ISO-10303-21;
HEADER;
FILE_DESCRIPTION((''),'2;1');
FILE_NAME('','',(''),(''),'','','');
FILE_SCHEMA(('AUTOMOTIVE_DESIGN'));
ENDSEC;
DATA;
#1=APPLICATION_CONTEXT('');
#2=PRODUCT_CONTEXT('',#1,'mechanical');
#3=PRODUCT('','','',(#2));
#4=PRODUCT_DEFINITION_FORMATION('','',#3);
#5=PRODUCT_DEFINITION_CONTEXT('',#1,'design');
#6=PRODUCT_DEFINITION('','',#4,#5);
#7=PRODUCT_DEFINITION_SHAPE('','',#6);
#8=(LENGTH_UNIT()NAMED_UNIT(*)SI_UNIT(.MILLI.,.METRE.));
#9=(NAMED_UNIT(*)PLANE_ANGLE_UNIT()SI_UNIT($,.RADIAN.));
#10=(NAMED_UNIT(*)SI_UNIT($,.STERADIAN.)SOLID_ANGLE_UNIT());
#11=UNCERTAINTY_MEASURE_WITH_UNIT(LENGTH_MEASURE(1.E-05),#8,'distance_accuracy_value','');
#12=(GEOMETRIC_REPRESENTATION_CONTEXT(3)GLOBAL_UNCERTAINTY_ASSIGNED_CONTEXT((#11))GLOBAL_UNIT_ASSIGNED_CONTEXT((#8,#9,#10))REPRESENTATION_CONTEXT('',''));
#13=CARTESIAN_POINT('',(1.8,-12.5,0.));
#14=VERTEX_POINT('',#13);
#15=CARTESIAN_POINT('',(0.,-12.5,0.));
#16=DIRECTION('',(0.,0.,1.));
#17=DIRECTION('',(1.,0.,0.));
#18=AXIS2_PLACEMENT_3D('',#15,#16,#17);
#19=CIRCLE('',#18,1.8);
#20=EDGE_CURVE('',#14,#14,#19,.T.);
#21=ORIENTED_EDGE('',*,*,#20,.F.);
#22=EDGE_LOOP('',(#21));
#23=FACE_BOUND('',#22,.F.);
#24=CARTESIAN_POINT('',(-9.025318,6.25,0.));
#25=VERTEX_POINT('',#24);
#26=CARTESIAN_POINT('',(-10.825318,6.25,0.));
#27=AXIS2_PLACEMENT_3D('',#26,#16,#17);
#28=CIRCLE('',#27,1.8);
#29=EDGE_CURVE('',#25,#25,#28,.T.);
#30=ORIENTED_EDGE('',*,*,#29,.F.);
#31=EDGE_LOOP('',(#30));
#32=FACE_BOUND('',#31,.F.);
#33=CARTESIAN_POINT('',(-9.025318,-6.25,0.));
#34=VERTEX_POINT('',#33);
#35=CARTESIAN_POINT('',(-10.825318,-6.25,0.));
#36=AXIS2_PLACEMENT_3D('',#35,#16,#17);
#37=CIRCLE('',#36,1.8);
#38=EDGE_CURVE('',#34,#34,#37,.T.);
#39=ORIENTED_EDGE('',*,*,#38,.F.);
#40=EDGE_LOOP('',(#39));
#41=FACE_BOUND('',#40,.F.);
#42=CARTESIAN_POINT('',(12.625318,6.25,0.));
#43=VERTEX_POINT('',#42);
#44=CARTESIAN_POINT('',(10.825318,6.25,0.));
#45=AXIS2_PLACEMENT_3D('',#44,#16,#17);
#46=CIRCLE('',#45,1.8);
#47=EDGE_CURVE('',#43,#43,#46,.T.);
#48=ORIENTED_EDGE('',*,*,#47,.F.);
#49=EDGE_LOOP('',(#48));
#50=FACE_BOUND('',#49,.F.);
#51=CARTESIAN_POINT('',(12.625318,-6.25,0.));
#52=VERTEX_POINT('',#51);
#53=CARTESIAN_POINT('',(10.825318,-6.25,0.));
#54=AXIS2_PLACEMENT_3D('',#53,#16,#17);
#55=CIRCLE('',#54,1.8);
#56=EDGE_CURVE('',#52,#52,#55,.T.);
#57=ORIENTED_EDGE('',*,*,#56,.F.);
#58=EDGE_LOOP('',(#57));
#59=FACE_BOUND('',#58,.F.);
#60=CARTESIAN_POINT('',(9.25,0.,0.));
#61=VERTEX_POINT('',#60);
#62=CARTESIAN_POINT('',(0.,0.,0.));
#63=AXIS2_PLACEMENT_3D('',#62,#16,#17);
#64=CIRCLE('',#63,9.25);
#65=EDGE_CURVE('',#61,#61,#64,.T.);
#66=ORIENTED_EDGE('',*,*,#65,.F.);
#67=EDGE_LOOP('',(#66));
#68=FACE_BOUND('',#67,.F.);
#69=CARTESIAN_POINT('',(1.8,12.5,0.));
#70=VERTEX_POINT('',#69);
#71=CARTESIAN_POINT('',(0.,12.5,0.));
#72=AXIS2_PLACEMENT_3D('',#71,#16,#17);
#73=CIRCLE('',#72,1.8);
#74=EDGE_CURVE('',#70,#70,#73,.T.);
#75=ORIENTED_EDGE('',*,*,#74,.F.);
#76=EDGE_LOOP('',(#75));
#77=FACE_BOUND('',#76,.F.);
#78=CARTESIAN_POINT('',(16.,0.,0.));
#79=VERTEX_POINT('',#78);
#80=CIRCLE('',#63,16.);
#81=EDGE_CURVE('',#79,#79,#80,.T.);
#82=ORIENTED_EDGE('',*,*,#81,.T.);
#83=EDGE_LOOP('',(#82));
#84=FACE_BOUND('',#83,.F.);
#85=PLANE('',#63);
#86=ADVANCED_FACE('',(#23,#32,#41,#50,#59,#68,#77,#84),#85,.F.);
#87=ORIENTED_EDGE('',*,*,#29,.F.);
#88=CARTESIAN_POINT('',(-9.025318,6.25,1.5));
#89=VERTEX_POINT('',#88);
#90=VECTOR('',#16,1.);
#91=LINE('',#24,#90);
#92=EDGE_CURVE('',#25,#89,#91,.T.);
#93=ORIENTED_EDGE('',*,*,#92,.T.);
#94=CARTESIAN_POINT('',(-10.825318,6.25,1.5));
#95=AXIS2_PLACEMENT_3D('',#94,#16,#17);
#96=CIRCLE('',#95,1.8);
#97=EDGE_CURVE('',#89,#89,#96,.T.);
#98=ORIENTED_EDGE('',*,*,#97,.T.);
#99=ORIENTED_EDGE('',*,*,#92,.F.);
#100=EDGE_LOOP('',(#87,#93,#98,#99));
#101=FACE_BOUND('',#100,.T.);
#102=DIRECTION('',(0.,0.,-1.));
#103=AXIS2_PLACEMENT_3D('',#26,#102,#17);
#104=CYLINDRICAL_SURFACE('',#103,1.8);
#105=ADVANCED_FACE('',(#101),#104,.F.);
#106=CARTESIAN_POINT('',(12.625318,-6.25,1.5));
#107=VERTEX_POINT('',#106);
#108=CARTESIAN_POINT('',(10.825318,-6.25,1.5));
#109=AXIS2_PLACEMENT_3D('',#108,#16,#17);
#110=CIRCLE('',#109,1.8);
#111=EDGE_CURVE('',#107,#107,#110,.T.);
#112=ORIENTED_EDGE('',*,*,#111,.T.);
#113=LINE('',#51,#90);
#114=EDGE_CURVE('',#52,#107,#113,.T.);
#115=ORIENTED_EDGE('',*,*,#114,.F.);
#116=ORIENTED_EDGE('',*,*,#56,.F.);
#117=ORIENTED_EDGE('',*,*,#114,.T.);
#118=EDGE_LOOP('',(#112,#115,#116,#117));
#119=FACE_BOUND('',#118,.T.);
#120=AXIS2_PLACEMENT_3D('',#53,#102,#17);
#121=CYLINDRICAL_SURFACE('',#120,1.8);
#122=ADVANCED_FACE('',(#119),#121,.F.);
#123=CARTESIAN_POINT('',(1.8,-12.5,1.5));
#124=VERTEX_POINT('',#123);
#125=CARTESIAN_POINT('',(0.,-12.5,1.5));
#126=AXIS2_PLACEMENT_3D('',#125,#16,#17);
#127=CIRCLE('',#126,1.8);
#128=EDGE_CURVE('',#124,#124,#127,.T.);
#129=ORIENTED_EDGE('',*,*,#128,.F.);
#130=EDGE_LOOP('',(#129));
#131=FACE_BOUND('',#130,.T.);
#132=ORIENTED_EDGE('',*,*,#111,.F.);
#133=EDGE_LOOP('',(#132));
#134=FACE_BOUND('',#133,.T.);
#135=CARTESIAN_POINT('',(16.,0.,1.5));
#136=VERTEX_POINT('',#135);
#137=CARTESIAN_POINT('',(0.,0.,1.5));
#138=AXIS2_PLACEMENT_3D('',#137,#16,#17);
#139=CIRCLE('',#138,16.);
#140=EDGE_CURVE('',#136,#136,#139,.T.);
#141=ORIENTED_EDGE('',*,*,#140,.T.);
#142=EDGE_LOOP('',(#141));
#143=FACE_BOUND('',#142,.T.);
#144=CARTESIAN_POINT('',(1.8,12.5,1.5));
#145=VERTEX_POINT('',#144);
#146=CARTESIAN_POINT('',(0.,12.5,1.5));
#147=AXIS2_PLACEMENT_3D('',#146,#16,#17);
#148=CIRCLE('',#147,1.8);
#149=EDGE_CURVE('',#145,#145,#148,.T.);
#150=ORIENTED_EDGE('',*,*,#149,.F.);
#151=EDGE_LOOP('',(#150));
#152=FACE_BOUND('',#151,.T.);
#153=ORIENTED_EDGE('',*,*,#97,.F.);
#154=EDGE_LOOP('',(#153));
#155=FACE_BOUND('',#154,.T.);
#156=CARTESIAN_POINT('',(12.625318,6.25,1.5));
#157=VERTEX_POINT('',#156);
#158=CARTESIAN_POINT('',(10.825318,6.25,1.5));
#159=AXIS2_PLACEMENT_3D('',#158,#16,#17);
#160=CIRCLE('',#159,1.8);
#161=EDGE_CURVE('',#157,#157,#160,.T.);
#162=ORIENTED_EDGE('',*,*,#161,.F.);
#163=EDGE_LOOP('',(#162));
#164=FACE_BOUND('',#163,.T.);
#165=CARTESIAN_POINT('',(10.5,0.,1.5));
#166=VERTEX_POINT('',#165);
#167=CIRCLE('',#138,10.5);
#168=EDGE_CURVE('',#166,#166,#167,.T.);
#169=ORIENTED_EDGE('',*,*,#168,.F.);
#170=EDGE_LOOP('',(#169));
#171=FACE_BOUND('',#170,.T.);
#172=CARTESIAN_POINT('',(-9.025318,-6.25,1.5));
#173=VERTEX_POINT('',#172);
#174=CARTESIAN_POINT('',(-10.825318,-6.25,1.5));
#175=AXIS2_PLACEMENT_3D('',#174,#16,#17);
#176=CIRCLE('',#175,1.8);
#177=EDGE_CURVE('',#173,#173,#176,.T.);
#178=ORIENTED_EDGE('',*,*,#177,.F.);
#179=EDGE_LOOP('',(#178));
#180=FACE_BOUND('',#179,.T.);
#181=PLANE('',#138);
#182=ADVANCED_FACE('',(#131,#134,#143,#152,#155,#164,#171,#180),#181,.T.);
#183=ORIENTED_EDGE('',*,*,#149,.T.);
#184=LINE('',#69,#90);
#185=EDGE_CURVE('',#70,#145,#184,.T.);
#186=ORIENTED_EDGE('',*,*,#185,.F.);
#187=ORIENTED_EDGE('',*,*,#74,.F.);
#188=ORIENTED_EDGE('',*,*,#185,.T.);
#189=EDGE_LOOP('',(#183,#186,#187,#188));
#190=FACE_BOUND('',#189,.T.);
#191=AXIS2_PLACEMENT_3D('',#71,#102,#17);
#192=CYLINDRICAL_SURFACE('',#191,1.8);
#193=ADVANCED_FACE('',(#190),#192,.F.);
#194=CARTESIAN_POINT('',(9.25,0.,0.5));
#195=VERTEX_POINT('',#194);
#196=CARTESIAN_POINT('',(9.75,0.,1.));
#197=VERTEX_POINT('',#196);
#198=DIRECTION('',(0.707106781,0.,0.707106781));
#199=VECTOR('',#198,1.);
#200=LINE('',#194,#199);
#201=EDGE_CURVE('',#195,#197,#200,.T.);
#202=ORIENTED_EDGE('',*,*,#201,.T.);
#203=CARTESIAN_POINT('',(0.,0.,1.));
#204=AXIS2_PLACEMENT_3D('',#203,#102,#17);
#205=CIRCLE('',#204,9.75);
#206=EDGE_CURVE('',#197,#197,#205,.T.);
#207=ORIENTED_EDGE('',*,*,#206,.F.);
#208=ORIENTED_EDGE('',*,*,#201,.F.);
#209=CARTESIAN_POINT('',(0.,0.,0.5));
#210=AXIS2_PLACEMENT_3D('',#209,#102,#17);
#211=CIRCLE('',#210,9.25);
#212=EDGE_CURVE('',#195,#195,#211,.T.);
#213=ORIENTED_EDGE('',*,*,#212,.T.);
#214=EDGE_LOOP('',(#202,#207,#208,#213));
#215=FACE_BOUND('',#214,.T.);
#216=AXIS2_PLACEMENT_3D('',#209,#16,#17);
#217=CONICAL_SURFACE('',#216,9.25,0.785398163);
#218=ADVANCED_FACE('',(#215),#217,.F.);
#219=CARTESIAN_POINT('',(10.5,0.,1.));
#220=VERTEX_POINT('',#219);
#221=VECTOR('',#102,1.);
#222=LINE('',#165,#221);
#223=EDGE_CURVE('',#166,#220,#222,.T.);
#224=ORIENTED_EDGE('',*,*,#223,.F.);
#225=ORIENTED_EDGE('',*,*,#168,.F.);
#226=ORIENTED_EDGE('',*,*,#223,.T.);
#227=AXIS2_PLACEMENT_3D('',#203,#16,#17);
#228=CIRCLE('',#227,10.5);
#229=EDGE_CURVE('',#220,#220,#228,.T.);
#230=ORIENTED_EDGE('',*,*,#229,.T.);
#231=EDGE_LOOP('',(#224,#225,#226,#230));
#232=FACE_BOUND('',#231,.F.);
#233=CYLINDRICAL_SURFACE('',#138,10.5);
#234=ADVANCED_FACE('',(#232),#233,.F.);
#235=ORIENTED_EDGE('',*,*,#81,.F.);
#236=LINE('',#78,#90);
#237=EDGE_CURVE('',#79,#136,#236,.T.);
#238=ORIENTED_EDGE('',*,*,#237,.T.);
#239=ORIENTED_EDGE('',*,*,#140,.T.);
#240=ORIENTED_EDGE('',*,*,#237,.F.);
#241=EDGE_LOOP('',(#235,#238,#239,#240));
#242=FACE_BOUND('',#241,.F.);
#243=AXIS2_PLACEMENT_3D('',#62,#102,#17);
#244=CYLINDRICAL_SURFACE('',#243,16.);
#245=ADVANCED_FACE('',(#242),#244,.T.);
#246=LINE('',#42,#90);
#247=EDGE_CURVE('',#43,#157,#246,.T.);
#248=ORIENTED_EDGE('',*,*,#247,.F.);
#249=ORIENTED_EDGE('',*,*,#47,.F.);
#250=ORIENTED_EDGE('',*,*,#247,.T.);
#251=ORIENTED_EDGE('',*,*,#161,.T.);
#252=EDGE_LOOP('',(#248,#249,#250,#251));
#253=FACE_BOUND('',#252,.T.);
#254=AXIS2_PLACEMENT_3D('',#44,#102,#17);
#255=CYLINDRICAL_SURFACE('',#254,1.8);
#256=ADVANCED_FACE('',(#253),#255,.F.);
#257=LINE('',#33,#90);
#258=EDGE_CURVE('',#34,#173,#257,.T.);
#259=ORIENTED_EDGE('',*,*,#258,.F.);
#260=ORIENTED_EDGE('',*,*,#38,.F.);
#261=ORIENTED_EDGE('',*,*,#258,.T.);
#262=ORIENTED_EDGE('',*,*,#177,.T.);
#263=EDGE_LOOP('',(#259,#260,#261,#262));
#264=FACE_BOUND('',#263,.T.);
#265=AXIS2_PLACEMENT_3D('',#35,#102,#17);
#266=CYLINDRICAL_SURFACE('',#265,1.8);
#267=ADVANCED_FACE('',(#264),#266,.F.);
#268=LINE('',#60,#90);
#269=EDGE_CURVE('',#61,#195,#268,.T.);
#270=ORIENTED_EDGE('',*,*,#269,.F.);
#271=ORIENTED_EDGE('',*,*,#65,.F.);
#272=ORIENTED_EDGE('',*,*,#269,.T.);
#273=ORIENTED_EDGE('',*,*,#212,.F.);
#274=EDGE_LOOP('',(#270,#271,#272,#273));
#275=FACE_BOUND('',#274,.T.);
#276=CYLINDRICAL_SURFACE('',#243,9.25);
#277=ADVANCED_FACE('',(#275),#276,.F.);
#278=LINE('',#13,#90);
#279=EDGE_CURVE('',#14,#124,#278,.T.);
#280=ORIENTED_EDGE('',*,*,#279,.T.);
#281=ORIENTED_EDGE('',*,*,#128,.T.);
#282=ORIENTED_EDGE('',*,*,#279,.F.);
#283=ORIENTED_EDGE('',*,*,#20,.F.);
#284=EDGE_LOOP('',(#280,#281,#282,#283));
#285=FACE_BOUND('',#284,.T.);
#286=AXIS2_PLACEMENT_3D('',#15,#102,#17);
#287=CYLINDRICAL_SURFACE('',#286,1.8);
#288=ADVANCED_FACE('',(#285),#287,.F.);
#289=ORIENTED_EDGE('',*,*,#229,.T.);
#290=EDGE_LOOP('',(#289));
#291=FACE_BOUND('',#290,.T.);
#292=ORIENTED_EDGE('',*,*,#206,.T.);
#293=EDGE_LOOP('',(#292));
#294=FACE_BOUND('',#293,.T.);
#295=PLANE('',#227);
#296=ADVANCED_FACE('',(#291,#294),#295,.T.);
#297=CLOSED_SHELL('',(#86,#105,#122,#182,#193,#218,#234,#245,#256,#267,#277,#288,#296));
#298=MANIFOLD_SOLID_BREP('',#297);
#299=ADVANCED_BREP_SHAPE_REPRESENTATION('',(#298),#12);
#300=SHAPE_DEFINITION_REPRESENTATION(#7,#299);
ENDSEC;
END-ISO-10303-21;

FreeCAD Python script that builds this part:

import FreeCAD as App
import Part
import Sketcher

V = App.Vector
Q = App.Units.Quantity


def edges_at(feature, points):
    """Names of the edges that pass closest to the given points."""
    edges = feature.Shape.Edges
    near = lambda p: min(range(len(edges)), key=lambda i: edges[i].distToShape(Part.Vertex(*p))[0])
    return sorted({f"Edge{near(p) + 1}" for p in points})

doc = App.newDocument("Part")
body = doc.addObject("PartDesign::Body", "Body")

sketch1 = body.newObject("Sketcher::SketchObject", "Sketch")
sketch1.AttachmentSupport = (doc.getObject("XY_Plane"), [""])
sketch1.MapMode = "FlatFace"
sketch1.addGeometry(Part.Circle(V(0, 0, 0), V(0, 0, 1), 16), False)
sketch1.addGeometry(Part.Circle(V(-10.8, -6.2, 0), V(0, 0, 1), 1.8), False)
sketch1.addGeometry(Part.Circle(V(0, -12.5, 0), V(0, 0, 1), 1.8), False)
sketch1.addGeometry(Part.Circle(V(0, 0, 0), V(0, 0, 1), 9.2), False)
sketch1.addGeometry(Part.Circle(V(10.8, -6.2, 0), V(0, 0, 1), 1.8), False)
sketch1.addGeometry(Part.Circle(V(-10.8, 6.2, 0), V(0, 0, 1), 1.8), False)
sketch1.addGeometry(Part.Circle(V(10.8, 6.2, 0), V(0, 0, 1), 1.8), False)
sketch1.addGeometry(Part.Circle(V(0, 12.5, 0), V(0, 0, 1), 1.8), False)
sketch1.addConstraint(Sketcher.Constraint("Coincident", 0, 3, -1, 1))
sketch1.addConstraint(Sketcher.Constraint("Coincident", 3, 3, -1, 1))
sketch1.addConstraint(Sketcher.Constraint("Equal", 1, 2))
sketch1.addConstraint(Sketcher.Constraint("Equal", 2, 4))
sketch1.addConstraint(Sketcher.Constraint("Equal", 4, 5))
sketch1.addConstraint(Sketcher.Constraint("Equal", 5, 6))
sketch1.addConstraint(Sketcher.Constraint("Equal", 6, 7))
sketch1.addConstraint(Sketcher.Constraint("Symmetric", 4, 3, 5, 3, -1, 1))
sketch1.addConstraint(Sketcher.Constraint("Symmetric", 1, 3, 6, 3, -1, 1))
sketch1.addConstraint(Sketcher.Constraint("Symmetric", 2, 3, 7, 3, -1, 1))
sketch1.addConstraint(Sketcher.Constraint("Symmetric", 1, 3, 4, 3, -2))
sketch1.addConstraint(Sketcher.Constraint("PointOnObject", 2, 3, -2))
sketch1.addConstraint(Sketcher.Constraint("Diameter", 0, Q("32 mm")))
sketch1.addConstraint(Sketcher.Constraint("Diameter", 1, Q("3.6 mm")))
sketch1.addConstraint(Sketcher.Constraint("Diameter", 3, Q("18.5 mm")))
sketch1.addConstraint(Sketcher.Constraint("DistanceY", 2, 3, -1, 1, Q("12.5 mm")))
sketch1.addConstraint(Sketcher.Constraint("DistanceY", 1, 3, 5, 3, Q("12.5 mm")))
sketch1.addConstraint(Sketcher.Constraint("DistanceX", 1, 3, -1, 1, Q("10.825318 mm")))
pad1 = body.newObject("PartDesign::Pad", "Pad")
pad1.Profile = sketch1
pad1.Length = 1.5

sketch2 = body.newObject("Sketcher::SketchObject", "Sketch001")
sketch2.AttachmentSupport = (doc.getObject("XY_Plane"), [""])
sketch2.MapMode = "FlatFace"
sketch2.AttachmentOffset = App.Placement(V(0, 0, 1.5), App.Rotation())
sketch2.addGeometry(Part.Circle(V(0, 0, 0), V(0, 0, 1), 10), False)
sketch2.addConstraint(Sketcher.Constraint("Coincident", 0, 3, -1, 1))
sketch2.addConstraint(Sketcher.Constraint("Diameter", 0, Q("21 mm")))
pocket1 = body.newObject("PartDesign::Pocket", "Pocket")
pocket1.Profile = sketch2
pocket1.Length = 0.5
doc.recompute()

chamfer = body.newObject("PartDesign::Chamfer", "Chamfer")
chamfer.Base = (pocket1, edges_at(pocket1, [(-9.25, 0, 1)]))
chamfer.Size = 0.5

doc.recompute()
